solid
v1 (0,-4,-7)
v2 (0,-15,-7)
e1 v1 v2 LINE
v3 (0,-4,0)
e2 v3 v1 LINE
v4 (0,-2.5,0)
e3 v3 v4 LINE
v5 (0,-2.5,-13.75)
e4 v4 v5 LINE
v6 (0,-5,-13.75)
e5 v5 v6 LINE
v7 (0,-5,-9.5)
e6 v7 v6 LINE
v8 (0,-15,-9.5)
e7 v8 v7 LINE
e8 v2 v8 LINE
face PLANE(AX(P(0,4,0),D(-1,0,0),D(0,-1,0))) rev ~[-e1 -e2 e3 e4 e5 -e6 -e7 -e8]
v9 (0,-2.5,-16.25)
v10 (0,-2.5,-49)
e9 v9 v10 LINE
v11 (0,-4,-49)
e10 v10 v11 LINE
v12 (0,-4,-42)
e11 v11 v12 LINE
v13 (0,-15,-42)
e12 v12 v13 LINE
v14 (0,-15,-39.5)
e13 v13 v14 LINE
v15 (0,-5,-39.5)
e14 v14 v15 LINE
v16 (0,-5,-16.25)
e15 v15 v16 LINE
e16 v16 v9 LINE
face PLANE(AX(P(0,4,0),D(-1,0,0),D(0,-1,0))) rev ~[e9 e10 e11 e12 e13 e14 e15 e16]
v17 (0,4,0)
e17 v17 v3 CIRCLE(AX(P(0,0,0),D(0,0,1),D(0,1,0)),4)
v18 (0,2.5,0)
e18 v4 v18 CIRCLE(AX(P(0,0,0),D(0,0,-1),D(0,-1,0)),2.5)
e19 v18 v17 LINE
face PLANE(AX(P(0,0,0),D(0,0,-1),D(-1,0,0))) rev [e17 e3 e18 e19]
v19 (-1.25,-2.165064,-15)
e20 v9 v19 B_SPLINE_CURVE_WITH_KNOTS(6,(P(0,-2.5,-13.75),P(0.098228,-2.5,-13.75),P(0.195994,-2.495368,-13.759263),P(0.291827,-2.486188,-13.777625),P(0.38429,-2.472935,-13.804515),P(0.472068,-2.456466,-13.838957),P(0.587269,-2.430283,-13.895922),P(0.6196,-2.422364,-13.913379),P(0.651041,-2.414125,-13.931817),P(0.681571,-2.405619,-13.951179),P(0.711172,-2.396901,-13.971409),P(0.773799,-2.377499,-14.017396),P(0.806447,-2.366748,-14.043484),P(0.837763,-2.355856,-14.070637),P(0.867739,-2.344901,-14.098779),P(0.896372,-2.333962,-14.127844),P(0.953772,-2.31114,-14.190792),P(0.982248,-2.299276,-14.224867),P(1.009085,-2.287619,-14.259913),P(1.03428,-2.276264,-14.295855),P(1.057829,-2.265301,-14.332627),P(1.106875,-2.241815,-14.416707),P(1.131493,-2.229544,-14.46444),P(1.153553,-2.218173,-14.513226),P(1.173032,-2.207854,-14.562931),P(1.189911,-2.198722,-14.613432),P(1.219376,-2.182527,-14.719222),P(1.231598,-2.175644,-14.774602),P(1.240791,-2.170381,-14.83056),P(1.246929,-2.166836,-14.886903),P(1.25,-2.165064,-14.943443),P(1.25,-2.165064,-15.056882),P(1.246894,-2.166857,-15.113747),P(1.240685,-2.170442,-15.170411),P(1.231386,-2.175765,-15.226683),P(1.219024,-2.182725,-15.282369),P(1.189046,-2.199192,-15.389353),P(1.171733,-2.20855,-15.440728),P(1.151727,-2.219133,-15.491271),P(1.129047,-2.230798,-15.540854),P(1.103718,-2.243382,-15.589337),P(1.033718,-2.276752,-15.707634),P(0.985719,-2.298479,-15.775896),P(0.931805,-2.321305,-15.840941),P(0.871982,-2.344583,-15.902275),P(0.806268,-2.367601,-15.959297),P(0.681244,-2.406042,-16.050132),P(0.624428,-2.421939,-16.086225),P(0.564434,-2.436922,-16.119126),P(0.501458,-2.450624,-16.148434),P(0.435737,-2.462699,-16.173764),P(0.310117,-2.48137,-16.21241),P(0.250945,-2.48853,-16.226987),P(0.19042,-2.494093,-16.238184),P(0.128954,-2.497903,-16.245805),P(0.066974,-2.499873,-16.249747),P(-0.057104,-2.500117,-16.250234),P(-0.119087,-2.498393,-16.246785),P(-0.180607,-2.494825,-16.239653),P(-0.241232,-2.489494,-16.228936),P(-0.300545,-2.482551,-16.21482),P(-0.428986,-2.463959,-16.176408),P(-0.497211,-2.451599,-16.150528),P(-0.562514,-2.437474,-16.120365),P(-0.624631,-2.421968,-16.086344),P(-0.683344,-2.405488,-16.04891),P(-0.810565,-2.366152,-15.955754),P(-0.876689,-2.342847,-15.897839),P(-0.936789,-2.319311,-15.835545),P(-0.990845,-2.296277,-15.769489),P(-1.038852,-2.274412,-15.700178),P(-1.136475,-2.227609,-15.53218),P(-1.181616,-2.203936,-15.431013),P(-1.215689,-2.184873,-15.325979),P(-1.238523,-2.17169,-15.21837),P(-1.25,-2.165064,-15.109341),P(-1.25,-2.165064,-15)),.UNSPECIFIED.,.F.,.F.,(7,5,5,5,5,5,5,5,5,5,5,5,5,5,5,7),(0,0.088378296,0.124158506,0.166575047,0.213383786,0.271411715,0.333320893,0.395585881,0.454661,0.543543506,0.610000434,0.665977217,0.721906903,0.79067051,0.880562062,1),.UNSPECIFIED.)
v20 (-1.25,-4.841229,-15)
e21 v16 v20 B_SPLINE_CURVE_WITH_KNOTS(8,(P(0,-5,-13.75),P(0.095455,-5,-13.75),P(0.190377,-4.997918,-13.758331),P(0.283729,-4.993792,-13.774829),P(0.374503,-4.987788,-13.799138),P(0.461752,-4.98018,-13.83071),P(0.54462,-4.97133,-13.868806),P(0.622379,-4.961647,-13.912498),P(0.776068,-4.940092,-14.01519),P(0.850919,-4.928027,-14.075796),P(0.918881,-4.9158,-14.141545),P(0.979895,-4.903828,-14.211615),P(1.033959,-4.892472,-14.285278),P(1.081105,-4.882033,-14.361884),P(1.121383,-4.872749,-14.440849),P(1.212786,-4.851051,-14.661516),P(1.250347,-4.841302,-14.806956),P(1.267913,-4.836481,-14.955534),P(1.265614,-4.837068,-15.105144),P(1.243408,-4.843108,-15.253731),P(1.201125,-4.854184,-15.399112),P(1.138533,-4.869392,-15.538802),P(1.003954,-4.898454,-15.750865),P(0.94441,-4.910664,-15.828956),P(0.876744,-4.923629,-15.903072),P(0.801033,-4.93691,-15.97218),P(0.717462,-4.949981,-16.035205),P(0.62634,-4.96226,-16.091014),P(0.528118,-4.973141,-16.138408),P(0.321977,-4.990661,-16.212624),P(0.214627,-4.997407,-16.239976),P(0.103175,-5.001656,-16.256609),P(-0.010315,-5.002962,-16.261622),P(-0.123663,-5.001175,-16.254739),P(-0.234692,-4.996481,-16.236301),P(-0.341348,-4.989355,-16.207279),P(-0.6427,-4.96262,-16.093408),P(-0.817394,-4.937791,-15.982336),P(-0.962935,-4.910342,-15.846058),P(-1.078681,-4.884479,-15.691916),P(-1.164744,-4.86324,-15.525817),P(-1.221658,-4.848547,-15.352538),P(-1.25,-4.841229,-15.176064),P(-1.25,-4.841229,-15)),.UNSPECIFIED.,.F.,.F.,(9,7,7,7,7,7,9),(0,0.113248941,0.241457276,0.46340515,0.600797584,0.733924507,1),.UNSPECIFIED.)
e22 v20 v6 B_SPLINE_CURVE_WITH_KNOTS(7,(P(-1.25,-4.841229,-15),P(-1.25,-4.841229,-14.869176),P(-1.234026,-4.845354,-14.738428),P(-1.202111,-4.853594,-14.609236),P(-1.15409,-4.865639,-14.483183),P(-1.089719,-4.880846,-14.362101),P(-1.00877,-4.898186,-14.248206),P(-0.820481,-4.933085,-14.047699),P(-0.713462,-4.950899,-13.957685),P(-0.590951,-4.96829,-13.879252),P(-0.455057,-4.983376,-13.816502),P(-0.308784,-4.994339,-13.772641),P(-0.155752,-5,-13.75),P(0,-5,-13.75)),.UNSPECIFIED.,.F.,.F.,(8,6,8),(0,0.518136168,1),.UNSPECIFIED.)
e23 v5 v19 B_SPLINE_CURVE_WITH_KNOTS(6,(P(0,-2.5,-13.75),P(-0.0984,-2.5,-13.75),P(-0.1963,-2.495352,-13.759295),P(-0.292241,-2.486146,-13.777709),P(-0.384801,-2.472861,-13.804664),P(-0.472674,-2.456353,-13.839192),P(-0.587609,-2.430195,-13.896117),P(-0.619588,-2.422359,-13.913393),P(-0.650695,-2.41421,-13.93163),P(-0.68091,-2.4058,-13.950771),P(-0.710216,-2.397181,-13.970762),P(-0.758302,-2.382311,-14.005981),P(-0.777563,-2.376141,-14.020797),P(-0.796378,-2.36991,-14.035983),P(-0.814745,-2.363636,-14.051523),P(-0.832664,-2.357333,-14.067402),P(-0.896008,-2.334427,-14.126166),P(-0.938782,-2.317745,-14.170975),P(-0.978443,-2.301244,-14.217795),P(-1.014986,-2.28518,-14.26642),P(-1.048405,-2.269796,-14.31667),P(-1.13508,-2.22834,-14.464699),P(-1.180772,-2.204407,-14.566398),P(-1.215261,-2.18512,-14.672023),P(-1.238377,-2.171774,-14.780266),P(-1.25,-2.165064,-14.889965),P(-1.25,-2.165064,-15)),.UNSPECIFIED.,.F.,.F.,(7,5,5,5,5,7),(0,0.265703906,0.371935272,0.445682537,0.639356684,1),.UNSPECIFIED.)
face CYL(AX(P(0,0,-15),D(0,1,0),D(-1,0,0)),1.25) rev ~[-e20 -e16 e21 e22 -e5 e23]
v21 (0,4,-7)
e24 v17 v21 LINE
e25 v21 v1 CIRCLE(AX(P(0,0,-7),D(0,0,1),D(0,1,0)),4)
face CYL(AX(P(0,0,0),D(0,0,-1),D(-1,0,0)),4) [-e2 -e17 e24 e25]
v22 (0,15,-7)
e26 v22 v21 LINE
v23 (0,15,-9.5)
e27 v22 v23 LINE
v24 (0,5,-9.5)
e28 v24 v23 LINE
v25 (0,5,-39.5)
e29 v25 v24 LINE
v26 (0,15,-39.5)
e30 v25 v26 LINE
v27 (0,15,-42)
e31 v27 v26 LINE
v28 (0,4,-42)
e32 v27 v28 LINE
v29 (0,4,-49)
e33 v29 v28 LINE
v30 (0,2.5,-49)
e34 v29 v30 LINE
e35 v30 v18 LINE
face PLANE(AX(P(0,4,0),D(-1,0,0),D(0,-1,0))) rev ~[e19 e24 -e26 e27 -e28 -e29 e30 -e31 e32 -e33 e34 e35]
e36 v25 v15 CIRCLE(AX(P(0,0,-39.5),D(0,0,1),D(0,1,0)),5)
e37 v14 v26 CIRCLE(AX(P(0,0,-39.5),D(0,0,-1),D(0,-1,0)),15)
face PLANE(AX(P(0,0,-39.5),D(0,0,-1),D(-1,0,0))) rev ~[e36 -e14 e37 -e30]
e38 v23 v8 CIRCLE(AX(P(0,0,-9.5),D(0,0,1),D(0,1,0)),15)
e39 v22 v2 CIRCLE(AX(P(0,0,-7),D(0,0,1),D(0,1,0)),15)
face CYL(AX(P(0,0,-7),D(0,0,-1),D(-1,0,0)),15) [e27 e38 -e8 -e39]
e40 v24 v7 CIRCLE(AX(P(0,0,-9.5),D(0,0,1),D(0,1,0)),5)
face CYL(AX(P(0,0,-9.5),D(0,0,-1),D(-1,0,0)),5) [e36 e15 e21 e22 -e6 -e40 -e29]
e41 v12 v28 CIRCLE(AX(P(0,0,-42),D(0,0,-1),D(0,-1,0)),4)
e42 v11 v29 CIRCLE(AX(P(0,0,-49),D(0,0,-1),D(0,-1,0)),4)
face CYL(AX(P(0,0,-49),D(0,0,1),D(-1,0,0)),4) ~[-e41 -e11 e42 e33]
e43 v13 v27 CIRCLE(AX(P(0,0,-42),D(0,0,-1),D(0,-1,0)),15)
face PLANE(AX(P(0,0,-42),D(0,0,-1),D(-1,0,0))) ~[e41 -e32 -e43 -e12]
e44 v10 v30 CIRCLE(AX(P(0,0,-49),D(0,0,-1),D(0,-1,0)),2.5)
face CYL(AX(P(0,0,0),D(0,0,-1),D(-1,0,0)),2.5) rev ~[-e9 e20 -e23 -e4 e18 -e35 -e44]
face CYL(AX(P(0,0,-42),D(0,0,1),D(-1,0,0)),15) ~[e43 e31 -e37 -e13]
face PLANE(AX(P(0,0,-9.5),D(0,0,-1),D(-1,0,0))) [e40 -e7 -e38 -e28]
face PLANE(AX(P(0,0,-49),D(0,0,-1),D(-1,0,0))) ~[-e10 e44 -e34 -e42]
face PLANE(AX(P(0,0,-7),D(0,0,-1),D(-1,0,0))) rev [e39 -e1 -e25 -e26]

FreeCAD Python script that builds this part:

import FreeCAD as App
import Part
import Sketcher
from FreeCAD import Vector
Q = App.Units.Quantity

doc = App.newDocument("Part")
body = doc.addObject("PartDesign::Body", "Body")

sketch1 = doc.addObject("Sketcher::SketchObject", "Sketch")
body.addObject(sketch1)
sketch1.AttachmentSupport = (doc.XZ_Plane, [""])
sketch1.MapMode = "FlatFace"
sketch1.addGeometry(Part.LineSegment(Vector(-4, 0, 0), Vector(-2.5, 0, 0)), False)
sketch1.addGeometry(Part.LineSegment(Vector(-2.5, 0, 0), Vector(-2.5, -49, 0)), False)
sketch1.addGeometry(Part.LineSegment(Vector(-2.5, -49, 0), Vector(-4, -49, 0)), False)
sketch1.addGeometry(Part.LineSegment(Vector(-4, -49, 0), Vector(-4, -42, 0)), False)
sketch1.addGeometry(Part.LineSegment(Vector(-4, -42, 0), Vector(-15, -42, 0)), False)
sketch1.addGeometry(Part.LineSegment(Vector(-15, -42, 0), Vector(-15, -39.5, 0)), False)
sketch1.addGeometry(Part.LineSegment(Vector(-15, -39.5, 0), Vector(-5, -39.5, 0)), False)
sketch1.addGeometry(Part.LineSegment(Vector(-5, -39.5, 0), Vector(-5, -9.5, 0)), False)
sketch1.addGeometry(Part.LineSegment(Vector(-5, -9.5, 0), Vector(-15, -9.5, 0)), False)
sketch1.addGeometry(Part.LineSegment(Vector(-15, -9.5, 0), Vector(-15, -7, 0)), False)
sketch1.addGeometry(Part.LineSegment(Vector(-15, -7, 0), Vector(-4, -7, 0)), False)
sketch1.addGeometry(Part.LineSegment(Vector(-4, -7, 0), Vector(-4, 0, 0)), False)
sketch1.addConstraint(Sketcher.Constraint("Coincident", 0, 2, 1, 1))
sketch1.addConstraint(Sketcher.Constraint("Coincident", 1, 2, 2, 1))
sketch1.addConstraint(Sketcher.Constraint("Coincident", 2, 2, 3, 1))
sketch1.addConstraint(Sketcher.Constraint("Coincident", 3, 2, 4, 1))
sketch1.addConstraint(Sketcher.Constraint("Coincident", 4, 2, 5, 1))
sketch1.addConstraint(Sketcher.Constraint("Coincident", 5, 2, 6, 1))
sketch1.addConstraint(Sketcher.Constraint("Coincident", 6, 2, 7, 1))
sketch1.addConstraint(Sketcher.Constraint("Coincident", 7, 2, 8, 1))
sketch1.addConstraint(Sketcher.Constraint("Coincident", 8, 2, 9, 1))
sketch1.addConstraint(Sketcher.Constraint("Coincident", 9, 2, 10, 1))
sketch1.addConstraint(Sketcher.Constraint("Coincident", 10, 2, 11, 1))
sketch1.addConstraint(Sketcher.Constraint("Coincident", 11, 2, 0, 1))
sketch1.addConstraint(Sketcher.Constraint("Horizontal", 0))
sketch1.addConstraint(Sketcher.Constraint("Vertical", 1))
sketch1.addConstraint(Sketcher.Constraint("Horizontal", 2))
sketch1.addConstraint(Sketcher.Constraint("Vertical", 3))
sketch1.addConstraint(Sketcher.Constraint("Horizontal", 4))
sketch1.addConstraint(Sketcher.Constraint("Vertical", 5))
sketch1.addConstraint(Sketcher.Constraint("Horizontal", 6))
sketch1.addConstraint(Sketcher.Constraint("Vertical", 7))
sketch1.addConstraint(Sketcher.Constraint("Horizontal", 8))
sketch1.addConstraint(Sketcher.Constraint("Vertical", 9))
sketch1.addConstraint(Sketcher.Constraint("Horizontal", 10))
sketch1.addConstraint(Sketcher.Constraint("Vertical", 11))
sketch1.addConstraint(Sketcher.Constraint("PointOnObject", 0, 2, -1))
sketch1.addConstraint(Sketcher.Constraint("Vertical", 5, 2, 8, 2))
sketch1.addConstraint(Sketcher.Constraint("Vertical", 3, 2, 10, 2))
sketch1.addConstraint(Sketcher.Constraint("Equal", 5, 9))
sketch1.addConstraint(Sketcher.Constraint("Equal", 3, 11))
sketch1.addConstraint(Sketcher.Constraint("DistanceY", 3, 1, 3, 2, Q("7 mm")))
sketch1.addConstraint(Sketcher.Constraint("DistanceY", 7, 1, 7, 2, Q("30 mm")))
sketch1.addConstraint(Sketcher.Constraint("DistanceY", 5, 1, 5, 2, Q("2.5 mm")))
sketch1.addConstraint(Sketcher.Constraint("DistanceX", 2, 2, -1, 1, Q("4 mm")))
sketch1.addConstraint(Sketcher.Constraint("DistanceX", 0, 2, -1, 1, Q("2.5 mm")))
sketch1.addConstraint(Sketcher.Constraint("DistanceX", 4, 2, 1, 2, Q("12.5 mm")))
sketch1.addConstraint(Sketcher.Constraint("DistanceX", 6, 2, 1, 2, Q("2.5 mm")))
revolution = doc.addObject("PartDesign::Revolution", "Revolution")
body.addObject(revolution)
revolution.Profile = sketch1
revolution.ReferenceAxis = (sketch1, ["V_Axis"])
revolution.Angle = 360

sketch2 = doc.addObject("Sketcher::SketchObject", "Sketch001")
body.addObject(sketch2)
sketch2.AttachmentSupport = (doc.XZ_Plane, [""])
sketch2.MapMode = "FlatFace"
sketch2.addGeometry(Part.Circle(Vector(0, -15, 0), Vector(0, 0, 1), 1.2), False)
sketch2.addConstraint(Sketcher.Constraint("PointOnObject", 0, 3, -2))
sketch2.addConstraint(Sketcher.Constraint("Diameter", 0, Q("2.5 mm")))
sketch2.addConstraint(Sketcher.Constraint("DistanceY", 0, 3, -1, 1, Q("15 mm")))
pocket1 = doc.addObject("PartDesign::Pocket", "Pocket")
body.addObject(pocket1)
pocket1.Profile = sketch2
pocket1.Length = 10
pocket1.Reversed = True

sketch3 = doc.addObject("Sketcher::SketchObject", "Sketch002")
body.addObject(sketch3)
sketch3.AttachmentSupport = (doc.XY_Plane, [""])
sketch3.MapMode = "FlatFace"
sketch3.addGeometry(Part.LineSegment(Vector(0, -18.7, 0), Vector(24.6, -18.7, 0)), False)
sketch3.addGeometry(Part.LineSegment(Vector(24.6, -18.7, 0), Vector(24.6, 0, 0)), False)
sketch3.addGeometry(Part.LineSegment(Vector(24.6, 0, 0), Vector(27.3, 0, 0)), False)
sketch3.addGeometry(Part.LineSegment(Vector(27.3, 0, 0), Vector(27.3, 19.7, 0)), False)
sketch3.addGeometry(Part.LineSegment(Vector(27.3, 19.7, 0), Vector(0, 19.7, 0)), False)
sketch3.addGeometry(Part.LineSegment(Vector(0, 19.7, 0), Vector(0, -18.7, 0)), False)
sketch3.addConstraint(Sketcher.Constraint("Coincident", 0, 2, 1, 1))
sketch3.addConstraint(Sketcher.Constraint("Coincident", 1, 2, 2, 1))
sketch3.addConstraint(Sketcher.Constraint("Coincident", 2, 2, 3, 1))
sketch3.addConstraint(Sketcher.Constraint("Coincident", 3, 2, 4, 1))
sketch3.addConstraint(Sketcher.Constraint("Coincident", 4, 2, 5, 1))
sketch3.addConstraint(Sketcher.Constraint("Coincident", 5, 2, 0, 1))
sketch3.addConstraint(Sketcher.Constraint("Horizontal", 0))
sketch3.addConstraint(Sketcher.Constraint("Vertical", 1))
sketch3.addConstraint(Sketcher.Constraint("Horizontal", 2))
sketch3.addConstraint(Sketcher.Constraint("Vertical", 3))
sketch3.addConstraint(Sketcher.Constraint("Horizontal", 4))
sketch3.addConstraint(Sketcher.Constraint("Vertical", 5))
sketch3.addConstraint(Sketcher.Constraint("PointOnObject", 1, 2, -1))
sketch3.addConstraint(Sketcher.Constraint("PointOnObject", 4, 2, -2))
sketch3.addConstraint(Sketcher.Constraint("DistanceY", 3, 1, 3, 2, Q("19.67 mm")))
sketch3.addConstraint(Sketcher.Constraint("DistanceX", 4, 2, 4, 1, Q("27.314 mm")))
sketch3.addConstraint(Sketcher.Constraint("DistanceX", 0, 1, 0, 2, Q("24.6363 mm")))
sketch3.addConstraint(Sketcher.Constraint("DistanceY", 1, 1, 1, 2, Q("18.6963 mm")))
pocket2 = doc.addObject("PartDesign::Pocket", "Pocket001")
body.addObject(pocket2)
pocket2.Profile = sketch3
pocket2.Length = 100

doc.recompute()
